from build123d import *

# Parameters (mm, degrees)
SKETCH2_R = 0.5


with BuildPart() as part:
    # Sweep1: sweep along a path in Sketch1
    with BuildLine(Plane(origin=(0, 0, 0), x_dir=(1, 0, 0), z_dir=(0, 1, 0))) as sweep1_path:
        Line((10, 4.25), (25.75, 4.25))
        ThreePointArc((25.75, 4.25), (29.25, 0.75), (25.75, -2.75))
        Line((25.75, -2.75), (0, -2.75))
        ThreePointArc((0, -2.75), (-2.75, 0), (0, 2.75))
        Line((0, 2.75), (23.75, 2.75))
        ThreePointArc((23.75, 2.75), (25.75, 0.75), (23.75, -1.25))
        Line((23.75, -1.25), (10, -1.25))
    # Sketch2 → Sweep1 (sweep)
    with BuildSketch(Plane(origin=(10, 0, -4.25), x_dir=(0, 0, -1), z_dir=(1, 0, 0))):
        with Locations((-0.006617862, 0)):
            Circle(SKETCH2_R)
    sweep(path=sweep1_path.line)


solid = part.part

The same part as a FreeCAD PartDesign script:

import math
import FreeCAD as App
import Part
import Sketcher

doc = App.newDocument("Part")
body = doc.addObject("PartDesign::Body", "Body")

# Sketch on YZ plane
sketch1 = body.newObject("Sketcher::SketchObject", "Sketch")
sketch1.AttachmentSupport = (doc.getObject("YZ_Plane"), [""])
sketch1.MapMode = "FlatFace"
sketch1.AttachmentOffset = App.Placement(App.Vector(0, 0, 10), App.Rotation())
sketch1.addGeometry(Part.Circle(App.Vector(0, -4.2, 0), App.Vector(0, 0, 1), 0.5), False)
sketch1.addConstraint(Sketcher.Constraint("PointOnObject", 0, 3, -2))
sketch1.addConstraint(Sketcher.Constraint("Diameter", 0, 1.0))
sketch1.addConstraint(Sketcher.Constraint("DistanceY", 0, 3, -1, 1, 4.243382))

# Sketch on XZ plane
sketch2 = body.newObject("Sketcher::SketchObject", "Sketch001")
sketch2.AttachmentSupport = (doc.getObject("XZ_Plane"), [""])
sketch2.MapMode = "FlatFace"
sketch2.addGeometry(Part.LineSegment(App.Vector(10, -4.2, 0), App.Vector(25.8, -4.2, 0)), False)
sketch2.addGeometry(Part.ArcOfCircle(Part.Circle(App.Vector(25.8, -0.8, 0), App.Vector(0, 0, 1), 3.5), math.radians(-90), math.radians(90)), False)
sketch2.addGeometry(Part.LineSegment(App.Vector(25.8, 2.8, 0), App.Vector(0, 2.8, 0)), False)
sketch2.addGeometry(Part.ArcOfCircle(Part.Circle(App.Vector(0, 0, 0), App.Vector(0, 0, 1), 2.8), math.radians(90), math.radians(270)), False)
sketch2.addGeometry(Part.LineSegment(App.Vector(0, -2.8, 0), App.Vector(23.8, -2.8, 0)), False)
sketch2.addGeometry(Part.ArcOfCircle(Part.Circle(App.Vector(23.8, -0.8, 0), App.Vector(0, 0, 1), 2), math.radians(-90), math.radians(90)), False)
sketch2.addGeometry(Part.LineSegment(App.Vector(23.8, 1.2, 0), App.Vector(10, 1.2, 0)), False)
sketch2.addConstraint(Sketcher.Constraint("Tangent", 0, 2, 1, 1))
sketch2.addConstraint(Sketcher.Constraint("Tangent", 1, 2, 2, 1))
sketch2.addConstraint(Sketcher.Constraint("Tangent", 2, 2, 3, 1))
sketch2.addConstraint(Sketcher.Constraint("Tangent", 3, 2, 4, 1))
sketch2.addConstraint(Sketcher.Constraint("Tangent", 4, 2, 5, 1))
sketch2.addConstraint(Sketcher.Constraint("Tangent", 5, 2, 6, 1))
sketch2.addConstraint(Sketcher.Constraint("Horizontal", 0))
sketch2.addConstraint(Sketcher.Constraint("Horizontal", 2))
sketch2.addConstraint(Sketcher.Constraint("Horizontal", 4))
sketch2.addConstraint(Sketcher.Constraint("Horizontal", 6))
sketch2.addConstraint(Sketcher.Constraint("Coincident", 3, 3, -1, 1))
sketch2.addConstraint(Sketcher.Constraint("Horizontal", 1, 3, 5, 3))
sketch2.addConstraint(Sketcher.Constraint("Vertical", 0, 1, 6, 2))
sketch2.addConstraint(Sketcher.Constraint("Radius", 5, 2.0))
sketch2.addConstraint(Sketcher.Constraint("Radius", 1, 3.5))
sketch2.addConstraint(Sketcher.Constraint("DistanceX", -1, 1, 0, 1, 10.0))
sketch2.addConstraint(Sketcher.Constraint("DistanceX", 5, 3, 1, 3, 2.0))
sketch2.addConstraint(Sketcher.Constraint("DistanceX", 0, 1, 0, 2, 15.75))
doc.recompute()

additivepipe = body.newObject("PartDesign::AdditivePipe", "AdditivePipe")
additivepipe.Profile = sketch1
additivepipe.Spine = (sketch2, ["Edge1", "Edge2", "Edge3", "Edge4", "Edge5", "Edge6", "Edge7"])

doc.recompute()
